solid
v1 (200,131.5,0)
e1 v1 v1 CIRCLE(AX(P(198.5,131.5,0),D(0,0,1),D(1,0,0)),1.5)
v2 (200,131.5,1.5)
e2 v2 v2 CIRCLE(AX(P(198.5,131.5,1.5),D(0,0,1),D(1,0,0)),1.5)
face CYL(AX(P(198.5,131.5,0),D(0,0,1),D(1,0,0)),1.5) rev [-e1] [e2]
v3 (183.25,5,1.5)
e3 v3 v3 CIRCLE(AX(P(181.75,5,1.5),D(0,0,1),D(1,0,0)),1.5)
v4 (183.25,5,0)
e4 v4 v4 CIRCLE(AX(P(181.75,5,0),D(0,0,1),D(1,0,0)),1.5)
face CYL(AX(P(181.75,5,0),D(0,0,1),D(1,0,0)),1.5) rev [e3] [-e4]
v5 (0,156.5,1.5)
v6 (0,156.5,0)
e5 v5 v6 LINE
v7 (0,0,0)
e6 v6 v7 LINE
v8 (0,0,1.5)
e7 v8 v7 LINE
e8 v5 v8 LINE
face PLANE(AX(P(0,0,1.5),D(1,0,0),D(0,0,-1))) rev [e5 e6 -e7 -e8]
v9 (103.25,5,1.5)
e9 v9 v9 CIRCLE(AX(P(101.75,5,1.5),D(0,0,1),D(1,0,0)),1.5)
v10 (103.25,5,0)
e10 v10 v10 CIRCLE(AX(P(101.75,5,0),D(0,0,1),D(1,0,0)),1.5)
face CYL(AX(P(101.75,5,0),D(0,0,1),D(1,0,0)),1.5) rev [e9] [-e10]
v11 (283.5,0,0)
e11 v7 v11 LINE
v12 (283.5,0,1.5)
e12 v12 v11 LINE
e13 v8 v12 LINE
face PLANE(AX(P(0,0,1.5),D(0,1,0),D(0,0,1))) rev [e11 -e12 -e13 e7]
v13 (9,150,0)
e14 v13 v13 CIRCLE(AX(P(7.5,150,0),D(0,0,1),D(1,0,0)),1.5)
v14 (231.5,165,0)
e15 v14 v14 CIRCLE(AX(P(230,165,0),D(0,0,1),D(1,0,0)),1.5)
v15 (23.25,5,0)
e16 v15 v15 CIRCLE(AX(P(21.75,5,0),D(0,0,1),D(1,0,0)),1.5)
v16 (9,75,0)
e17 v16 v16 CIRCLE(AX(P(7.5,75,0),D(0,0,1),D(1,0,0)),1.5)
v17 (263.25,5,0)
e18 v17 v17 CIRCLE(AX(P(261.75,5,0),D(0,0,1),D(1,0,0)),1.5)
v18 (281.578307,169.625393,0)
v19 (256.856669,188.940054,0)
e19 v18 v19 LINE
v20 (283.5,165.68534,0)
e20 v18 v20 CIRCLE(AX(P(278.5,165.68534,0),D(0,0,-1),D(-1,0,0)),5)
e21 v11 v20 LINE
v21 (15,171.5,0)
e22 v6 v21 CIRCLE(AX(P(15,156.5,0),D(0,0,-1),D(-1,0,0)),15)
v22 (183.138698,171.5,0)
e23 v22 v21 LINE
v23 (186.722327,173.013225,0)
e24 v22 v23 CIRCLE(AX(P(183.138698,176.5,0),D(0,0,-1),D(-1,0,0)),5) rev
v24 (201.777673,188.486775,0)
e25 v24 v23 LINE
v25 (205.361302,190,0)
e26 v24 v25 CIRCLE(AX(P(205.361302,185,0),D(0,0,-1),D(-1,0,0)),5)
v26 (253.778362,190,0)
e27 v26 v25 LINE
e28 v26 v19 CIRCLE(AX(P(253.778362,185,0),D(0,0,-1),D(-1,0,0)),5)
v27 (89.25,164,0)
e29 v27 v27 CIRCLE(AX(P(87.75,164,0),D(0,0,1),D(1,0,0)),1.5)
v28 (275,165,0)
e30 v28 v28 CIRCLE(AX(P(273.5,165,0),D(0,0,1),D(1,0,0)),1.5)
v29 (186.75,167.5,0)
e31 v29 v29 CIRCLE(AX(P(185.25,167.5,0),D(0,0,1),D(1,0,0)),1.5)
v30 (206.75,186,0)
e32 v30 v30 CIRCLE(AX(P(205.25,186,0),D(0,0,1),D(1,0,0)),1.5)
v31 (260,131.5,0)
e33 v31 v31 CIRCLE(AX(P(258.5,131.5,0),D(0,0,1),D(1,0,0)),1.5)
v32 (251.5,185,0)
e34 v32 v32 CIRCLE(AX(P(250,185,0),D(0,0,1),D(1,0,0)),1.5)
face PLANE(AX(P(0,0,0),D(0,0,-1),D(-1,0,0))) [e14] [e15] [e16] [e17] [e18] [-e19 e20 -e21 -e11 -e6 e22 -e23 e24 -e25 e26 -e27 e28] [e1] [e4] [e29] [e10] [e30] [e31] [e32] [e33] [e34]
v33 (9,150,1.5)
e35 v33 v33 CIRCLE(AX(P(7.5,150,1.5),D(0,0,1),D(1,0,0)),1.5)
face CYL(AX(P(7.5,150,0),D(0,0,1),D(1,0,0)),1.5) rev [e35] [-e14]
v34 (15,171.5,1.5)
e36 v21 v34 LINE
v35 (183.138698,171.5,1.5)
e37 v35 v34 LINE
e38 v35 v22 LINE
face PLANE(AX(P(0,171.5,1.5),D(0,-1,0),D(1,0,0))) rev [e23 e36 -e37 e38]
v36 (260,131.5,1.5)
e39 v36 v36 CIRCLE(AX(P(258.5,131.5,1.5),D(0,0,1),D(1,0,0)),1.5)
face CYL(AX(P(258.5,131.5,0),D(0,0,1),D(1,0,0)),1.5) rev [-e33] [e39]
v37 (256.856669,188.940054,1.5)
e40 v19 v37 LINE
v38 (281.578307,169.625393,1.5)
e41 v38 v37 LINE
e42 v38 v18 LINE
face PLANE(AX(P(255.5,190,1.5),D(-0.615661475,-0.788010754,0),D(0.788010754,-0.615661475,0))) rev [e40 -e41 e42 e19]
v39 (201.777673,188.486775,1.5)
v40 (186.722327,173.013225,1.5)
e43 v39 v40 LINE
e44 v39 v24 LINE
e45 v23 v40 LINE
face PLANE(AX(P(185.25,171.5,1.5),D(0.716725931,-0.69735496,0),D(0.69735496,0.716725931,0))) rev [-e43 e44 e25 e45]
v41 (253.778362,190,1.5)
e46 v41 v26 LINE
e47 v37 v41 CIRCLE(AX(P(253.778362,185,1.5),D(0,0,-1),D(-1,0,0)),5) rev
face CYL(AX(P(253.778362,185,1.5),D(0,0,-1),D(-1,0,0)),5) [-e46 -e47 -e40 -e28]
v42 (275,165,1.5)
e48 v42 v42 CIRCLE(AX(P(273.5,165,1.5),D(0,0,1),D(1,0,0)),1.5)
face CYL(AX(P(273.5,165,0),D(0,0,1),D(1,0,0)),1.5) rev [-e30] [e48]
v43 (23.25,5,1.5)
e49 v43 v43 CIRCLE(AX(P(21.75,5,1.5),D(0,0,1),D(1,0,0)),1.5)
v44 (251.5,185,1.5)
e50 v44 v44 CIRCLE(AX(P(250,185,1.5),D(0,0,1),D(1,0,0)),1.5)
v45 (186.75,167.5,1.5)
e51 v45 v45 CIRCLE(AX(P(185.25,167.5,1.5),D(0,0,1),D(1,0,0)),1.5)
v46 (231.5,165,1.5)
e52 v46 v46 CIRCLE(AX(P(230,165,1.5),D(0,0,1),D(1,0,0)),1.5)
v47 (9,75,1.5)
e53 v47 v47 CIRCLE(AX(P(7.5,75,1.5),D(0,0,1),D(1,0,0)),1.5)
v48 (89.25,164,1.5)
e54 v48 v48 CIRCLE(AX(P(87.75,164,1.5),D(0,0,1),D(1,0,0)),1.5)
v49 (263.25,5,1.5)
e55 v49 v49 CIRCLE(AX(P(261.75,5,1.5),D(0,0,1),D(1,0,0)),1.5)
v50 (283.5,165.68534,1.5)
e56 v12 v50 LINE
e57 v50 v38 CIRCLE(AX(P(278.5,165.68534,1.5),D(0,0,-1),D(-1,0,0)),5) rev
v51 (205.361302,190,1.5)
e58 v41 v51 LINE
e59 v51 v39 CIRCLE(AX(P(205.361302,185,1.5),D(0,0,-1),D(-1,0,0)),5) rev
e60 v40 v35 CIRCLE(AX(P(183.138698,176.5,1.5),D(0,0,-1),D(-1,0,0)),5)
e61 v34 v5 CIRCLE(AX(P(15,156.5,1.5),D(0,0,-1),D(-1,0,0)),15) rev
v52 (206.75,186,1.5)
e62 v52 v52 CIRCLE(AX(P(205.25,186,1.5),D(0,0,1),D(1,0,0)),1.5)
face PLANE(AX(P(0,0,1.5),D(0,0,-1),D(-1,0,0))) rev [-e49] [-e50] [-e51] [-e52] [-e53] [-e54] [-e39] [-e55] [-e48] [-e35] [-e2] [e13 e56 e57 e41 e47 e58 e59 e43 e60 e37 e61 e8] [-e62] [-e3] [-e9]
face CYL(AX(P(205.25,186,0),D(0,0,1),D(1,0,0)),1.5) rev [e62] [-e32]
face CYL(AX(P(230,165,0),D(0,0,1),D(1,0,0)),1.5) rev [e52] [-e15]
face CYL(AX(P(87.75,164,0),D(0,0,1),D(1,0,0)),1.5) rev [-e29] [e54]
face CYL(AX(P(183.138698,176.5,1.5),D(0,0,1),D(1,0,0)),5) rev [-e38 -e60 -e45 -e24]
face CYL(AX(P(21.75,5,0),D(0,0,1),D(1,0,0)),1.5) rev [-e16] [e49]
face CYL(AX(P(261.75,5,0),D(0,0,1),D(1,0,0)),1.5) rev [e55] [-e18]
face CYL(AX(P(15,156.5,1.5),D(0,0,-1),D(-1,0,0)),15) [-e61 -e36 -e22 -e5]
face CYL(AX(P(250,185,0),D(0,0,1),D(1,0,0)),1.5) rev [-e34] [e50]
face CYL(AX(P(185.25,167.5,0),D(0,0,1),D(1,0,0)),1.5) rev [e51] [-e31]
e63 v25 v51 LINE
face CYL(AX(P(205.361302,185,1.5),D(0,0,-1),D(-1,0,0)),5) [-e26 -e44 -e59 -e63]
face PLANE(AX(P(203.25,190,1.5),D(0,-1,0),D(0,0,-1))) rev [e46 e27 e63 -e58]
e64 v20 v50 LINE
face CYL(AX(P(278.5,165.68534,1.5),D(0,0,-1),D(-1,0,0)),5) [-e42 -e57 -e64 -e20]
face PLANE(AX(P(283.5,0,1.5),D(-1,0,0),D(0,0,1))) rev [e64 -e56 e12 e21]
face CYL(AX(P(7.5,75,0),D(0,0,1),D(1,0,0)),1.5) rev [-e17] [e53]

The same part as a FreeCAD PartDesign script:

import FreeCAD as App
import Part
import Sketcher
from FreeCAD import Vector
Q = App.Units.Quantity


def edges_at(feature, points):
    """Names of the edges that pass closest to the given points."""
    edges = feature.Shape.Edges
    near = lambda p: min(range(len(edges)), key=lambda i: edges[i].distToShape(Part.Vertex(*p))[0])
    return sorted({f"Edge{near(p) + 1}" for p in points})


def add_polygon(sketch, points):
    """Adds a closed chain of lines whose ends are joined by coincident constraints."""
    first, n = sketch.GeometryCount, len(points)
    for a, b in zip(points, points[1:] + points[:1]):
        sketch.addGeometry(Part.LineSegment(App.Vector(*a, 0), App.Vector(*b, 0)), False)
    for i in range(n):
        sketch.addConstraint(Sketcher.Constraint("Coincident", first + i, 2, first + (i + 1) % n, 1))

doc = App.newDocument("Part")
body = doc.addObject("PartDesign::Body", "Body")

# Sketch on XY plane
sketch1 = doc.addObject("Sketcher::SketchObject", "Sketch")
body.addObject(sketch1)
sketch1.AttachmentSupport = (doc.XY_Plane, [""])
sketch1.MapMode = "FlatFace"
add_polygon(sketch1, [(203, 190), (185, 172), (0, 172), (0, 0), (284, 0), (284, 168), (256, 190)])  # lines 0-6
sketch1.addConstraint([
    Sketcher.Constraint("Horizontal", 1),
    Sketcher.Constraint("Vertical", 2),
    Sketcher.Constraint("Horizontal", 3),
    Sketcher.Constraint("Vertical", 4),
    Sketcher.Constraint("Horizontal", 6),
    Sketcher.Constraint("Coincident", 2, 2, -1, 1),
    Sketcher.Constraint("Angle", 5, Q("142 deg")),
    Sketcher.Constraint("DistanceX", 3, 1, 3, 2, 283.5),
    Sketcher.Constraint("DistanceY", 2, 2, 2, 1, 171.5),
    Sketcher.Constraint("DistanceY", -1, 1, 5, 2, 190.0),
    Sketcher.Constraint("DistanceX", 5, 2, 4, 2, 28.0),
    Sketcher.Constraint("DistanceX", 0, 2, 6, 2, 18.0),
    Sketcher.Constraint("DistanceX", 1, 2, 1, 1, 185.25),
])
pad1 = doc.addObject("PartDesign::Pad", "Pad")
body.addObject(pad1)
pad1.Profile = sketch1
pad1.Length = 1.5

# Sketch on XY plane
sketch2 = doc.addObject("Sketcher::SketchObject", "Sketch001")
body.addObject(sketch2)
sketch2.AttachmentSupport = (doc.XY_Plane, [""])
sketch2.MapMode = "FlatFace"
sketch2.AttachmentOffset = App.Placement(Vector(0, 0, 1.5), App.Rotation())
sketch2.addGeometry([
    Part.Circle(Vector(261.8, 5, 0), Vector(0, 0, 1), 1.5),  # 0
    Part.Circle(Vector(181.8, 5, 0), Vector(0, 0, 1), 1.5),  # 1
    Part.Circle(Vector(101.8, 5, 0), Vector(0, 0, 1), 1.5),  # 2
    Part.Circle(Vector(21.8, 5, 0), Vector(0, 0, 1), 1.5),  # 3
    Part.Circle(Vector(7.5, 75, 0), Vector(0, 0, 1), 1.5),  # 4
    Part.Circle(Vector(7.5, 150, 0), Vector(0, 0, 1), 1.5),  # 5
    Part.Circle(Vector(87.8, 164, 0), Vector(0, 0, 1), 1.5),  # 6
    Part.Circle(Vector(185.2, 167.5, 0), Vector(0, 0, 1), 1.5),  # 7
    Part.Circle(Vector(205.2, 186, 0), Vector(0, 0, 1), 1.5),  # 8
    Part.Circle(Vector(230, 165, 0), Vector(0, 0, 1), 1.5),  # 9
    Part.Circle(Vector(250, 185, 0), Vector(0, 0, 1), 1.5),  # 10
    Part.Circle(Vector(273.5, 165, 0), Vector(0, 0, 1), 1.5),  # 11
], False)
sketch2.addConstraint([
    Sketcher.Constraint("Equal", 0, 1),
    Sketcher.Constraint("Equal", 1, 2),
    Sketcher.Constraint("Equal", 2, 3),
    Sketcher.Constraint("Equal", 3, 4),
    Sketcher.Constraint("Equal", 4, 5),
    Sketcher.Constraint("Equal", 5, 6),
    Sketcher.Constraint("Equal", 6, 7),
    Sketcher.Constraint("Equal", 7, 8),
    Sketcher.Constraint("Equal", 8, 9),
    Sketcher.Constraint("Equal", 9, 10),
    Sketcher.Constraint("Equal", 10, 11),
    Sketcher.Constraint("Horizontal", 0, 3, 1, 3),
    Sketcher.Constraint("Horizontal", 1, 3, 2, 3),
    Sketcher.Constraint("Horizontal", 2, 3, 3, 3),
    Sketcher.Constraint("Horizontal", 9, 3, 11, 3),
    Sketcher.Constraint("Vertical", 4, 3, 5, 3),
    Sketcher.Constraint("Diameter", 0, 3.0),
    Sketcher.Constraint("DistanceY", -1, 1, 0, 3, 5.0),
    Sketcher.Constraint("DistanceY", -1, 1, 4, 3, 75.0),
    Sketcher.Constraint("DistanceY", -1, 1, 5, 3, 150.0),
    Sketcher.Constraint("DistanceY", -1, 1, 6, 3, 164.0),
    Sketcher.Constraint("DistanceY", -1, 1, 8, 3, 186.0),
    Sketcher.Constraint("DistanceX", -1, 1, 9, 3, 230.0),
    Sketcher.Constraint("DistanceY", -1, 1, 9, 3, 165.0),
    Sketcher.Constraint("DistanceX", -1, 1, 10, 3, 250.0),
    Sketcher.Constraint("DistanceY", -1, 1, 10, 3, 185.0),
    Sketcher.Constraint("DistanceX", 1, 3, 0, 3, 80.0),
    Sketcher.Constraint("DistanceX", 2, 3, 1, 3, 80.0),
    Sketcher.Constraint("DistanceX", 3, 3, 2, 3, 80.0),
    Sketcher.Constraint("DistanceX", 6, 3, 2, 3, 14.0),
    Sketcher.Constraint("DistanceX", 7, 3, 8, 3, 20.0),
    Sketcher.Constraint("DistanceX", -1, 1, 4, 3, 7.5),
    Sketcher.Constraint("DistanceY", -1, 1, 7, 3, 167.5),
    Sketcher.Constraint("DistanceX", -1, 1, 11, 3, 273.5),
    Sketcher.Constraint("DistanceX", 6, 3, 7, 3, 97.5),
    Sketcher.Constraint("DistanceX", -1, 1, 0, 3, 261.75),
])
pocket1 = doc.addObject("PartDesign::Pocket", "Pocket")
body.addObject(pocket1)
pocket1.Profile = sketch2
pocket1.Type = "ThroughAll"
doc.recompute()

fillet = doc.addObject("PartDesign::Fillet", "Fillet")
body.addObject(fillet)
fillet.Base = (pocket1, edges_at(pocket1, [
    (185.25, 171.5, 0.75),
    (203.25, 190, 0.75),
    (255.5, 190, 0.75),
    (283.5, 168.124, 0.75),
]))
fillet.Radius = 5
doc.recompute()

fillet2 = doc.addObject("PartDesign::Fillet", "Fillet001")
body.addObject(fillet2)
fillet2.Base = (fillet, edges_at(fillet, [(0, 171.5, 0.75)]))
fillet2.Radius = 15

# Sketch on XY plane
sketch3 = doc.addObject("Sketcher::SketchObject", "Sketch002")
body.addObject(sketch3)
sketch3.AttachmentSupport = (doc.XY_Plane, [""])
sketch3.MapMode = "FlatFace"
sketch3.AttachmentOffset = App.Placement(Vector(0, 0, 1.5), App.Rotation())
sketch3.addGeometry([
    Part.Circle(Vector(198.5, 131.5, 0), Vector(0, 0, 1), 1.5),
    Part.Circle(Vector(258.5, 131.5, 0), Vector(0, 0, 1), 1.5),
], False)
sketch3.addConstraint([
    Sketcher.Constraint("Equal", 0, 1),
    Sketcher.Constraint("Horizontal", 0, 3, 1, 3),
    Sketcher.Constraint("Diameter", 0, 3.0),
    Sketcher.Constraint("DistanceX", 0, 3, 1, 3, 60.0),
    Sketcher.Constraint("DistanceX", -1, 1, 0, 3, 198.5),
    Sketcher.Constraint("DistanceY", -1, 1, 0, 3, 131.5),
])
pocket2 = doc.addObject("PartDesign::Pocket", "Pocket001")
body.addObject(pocket2)
pocket2.Profile = sketch3
pocket2.Type = "ThroughAll"

doc.recompute()
